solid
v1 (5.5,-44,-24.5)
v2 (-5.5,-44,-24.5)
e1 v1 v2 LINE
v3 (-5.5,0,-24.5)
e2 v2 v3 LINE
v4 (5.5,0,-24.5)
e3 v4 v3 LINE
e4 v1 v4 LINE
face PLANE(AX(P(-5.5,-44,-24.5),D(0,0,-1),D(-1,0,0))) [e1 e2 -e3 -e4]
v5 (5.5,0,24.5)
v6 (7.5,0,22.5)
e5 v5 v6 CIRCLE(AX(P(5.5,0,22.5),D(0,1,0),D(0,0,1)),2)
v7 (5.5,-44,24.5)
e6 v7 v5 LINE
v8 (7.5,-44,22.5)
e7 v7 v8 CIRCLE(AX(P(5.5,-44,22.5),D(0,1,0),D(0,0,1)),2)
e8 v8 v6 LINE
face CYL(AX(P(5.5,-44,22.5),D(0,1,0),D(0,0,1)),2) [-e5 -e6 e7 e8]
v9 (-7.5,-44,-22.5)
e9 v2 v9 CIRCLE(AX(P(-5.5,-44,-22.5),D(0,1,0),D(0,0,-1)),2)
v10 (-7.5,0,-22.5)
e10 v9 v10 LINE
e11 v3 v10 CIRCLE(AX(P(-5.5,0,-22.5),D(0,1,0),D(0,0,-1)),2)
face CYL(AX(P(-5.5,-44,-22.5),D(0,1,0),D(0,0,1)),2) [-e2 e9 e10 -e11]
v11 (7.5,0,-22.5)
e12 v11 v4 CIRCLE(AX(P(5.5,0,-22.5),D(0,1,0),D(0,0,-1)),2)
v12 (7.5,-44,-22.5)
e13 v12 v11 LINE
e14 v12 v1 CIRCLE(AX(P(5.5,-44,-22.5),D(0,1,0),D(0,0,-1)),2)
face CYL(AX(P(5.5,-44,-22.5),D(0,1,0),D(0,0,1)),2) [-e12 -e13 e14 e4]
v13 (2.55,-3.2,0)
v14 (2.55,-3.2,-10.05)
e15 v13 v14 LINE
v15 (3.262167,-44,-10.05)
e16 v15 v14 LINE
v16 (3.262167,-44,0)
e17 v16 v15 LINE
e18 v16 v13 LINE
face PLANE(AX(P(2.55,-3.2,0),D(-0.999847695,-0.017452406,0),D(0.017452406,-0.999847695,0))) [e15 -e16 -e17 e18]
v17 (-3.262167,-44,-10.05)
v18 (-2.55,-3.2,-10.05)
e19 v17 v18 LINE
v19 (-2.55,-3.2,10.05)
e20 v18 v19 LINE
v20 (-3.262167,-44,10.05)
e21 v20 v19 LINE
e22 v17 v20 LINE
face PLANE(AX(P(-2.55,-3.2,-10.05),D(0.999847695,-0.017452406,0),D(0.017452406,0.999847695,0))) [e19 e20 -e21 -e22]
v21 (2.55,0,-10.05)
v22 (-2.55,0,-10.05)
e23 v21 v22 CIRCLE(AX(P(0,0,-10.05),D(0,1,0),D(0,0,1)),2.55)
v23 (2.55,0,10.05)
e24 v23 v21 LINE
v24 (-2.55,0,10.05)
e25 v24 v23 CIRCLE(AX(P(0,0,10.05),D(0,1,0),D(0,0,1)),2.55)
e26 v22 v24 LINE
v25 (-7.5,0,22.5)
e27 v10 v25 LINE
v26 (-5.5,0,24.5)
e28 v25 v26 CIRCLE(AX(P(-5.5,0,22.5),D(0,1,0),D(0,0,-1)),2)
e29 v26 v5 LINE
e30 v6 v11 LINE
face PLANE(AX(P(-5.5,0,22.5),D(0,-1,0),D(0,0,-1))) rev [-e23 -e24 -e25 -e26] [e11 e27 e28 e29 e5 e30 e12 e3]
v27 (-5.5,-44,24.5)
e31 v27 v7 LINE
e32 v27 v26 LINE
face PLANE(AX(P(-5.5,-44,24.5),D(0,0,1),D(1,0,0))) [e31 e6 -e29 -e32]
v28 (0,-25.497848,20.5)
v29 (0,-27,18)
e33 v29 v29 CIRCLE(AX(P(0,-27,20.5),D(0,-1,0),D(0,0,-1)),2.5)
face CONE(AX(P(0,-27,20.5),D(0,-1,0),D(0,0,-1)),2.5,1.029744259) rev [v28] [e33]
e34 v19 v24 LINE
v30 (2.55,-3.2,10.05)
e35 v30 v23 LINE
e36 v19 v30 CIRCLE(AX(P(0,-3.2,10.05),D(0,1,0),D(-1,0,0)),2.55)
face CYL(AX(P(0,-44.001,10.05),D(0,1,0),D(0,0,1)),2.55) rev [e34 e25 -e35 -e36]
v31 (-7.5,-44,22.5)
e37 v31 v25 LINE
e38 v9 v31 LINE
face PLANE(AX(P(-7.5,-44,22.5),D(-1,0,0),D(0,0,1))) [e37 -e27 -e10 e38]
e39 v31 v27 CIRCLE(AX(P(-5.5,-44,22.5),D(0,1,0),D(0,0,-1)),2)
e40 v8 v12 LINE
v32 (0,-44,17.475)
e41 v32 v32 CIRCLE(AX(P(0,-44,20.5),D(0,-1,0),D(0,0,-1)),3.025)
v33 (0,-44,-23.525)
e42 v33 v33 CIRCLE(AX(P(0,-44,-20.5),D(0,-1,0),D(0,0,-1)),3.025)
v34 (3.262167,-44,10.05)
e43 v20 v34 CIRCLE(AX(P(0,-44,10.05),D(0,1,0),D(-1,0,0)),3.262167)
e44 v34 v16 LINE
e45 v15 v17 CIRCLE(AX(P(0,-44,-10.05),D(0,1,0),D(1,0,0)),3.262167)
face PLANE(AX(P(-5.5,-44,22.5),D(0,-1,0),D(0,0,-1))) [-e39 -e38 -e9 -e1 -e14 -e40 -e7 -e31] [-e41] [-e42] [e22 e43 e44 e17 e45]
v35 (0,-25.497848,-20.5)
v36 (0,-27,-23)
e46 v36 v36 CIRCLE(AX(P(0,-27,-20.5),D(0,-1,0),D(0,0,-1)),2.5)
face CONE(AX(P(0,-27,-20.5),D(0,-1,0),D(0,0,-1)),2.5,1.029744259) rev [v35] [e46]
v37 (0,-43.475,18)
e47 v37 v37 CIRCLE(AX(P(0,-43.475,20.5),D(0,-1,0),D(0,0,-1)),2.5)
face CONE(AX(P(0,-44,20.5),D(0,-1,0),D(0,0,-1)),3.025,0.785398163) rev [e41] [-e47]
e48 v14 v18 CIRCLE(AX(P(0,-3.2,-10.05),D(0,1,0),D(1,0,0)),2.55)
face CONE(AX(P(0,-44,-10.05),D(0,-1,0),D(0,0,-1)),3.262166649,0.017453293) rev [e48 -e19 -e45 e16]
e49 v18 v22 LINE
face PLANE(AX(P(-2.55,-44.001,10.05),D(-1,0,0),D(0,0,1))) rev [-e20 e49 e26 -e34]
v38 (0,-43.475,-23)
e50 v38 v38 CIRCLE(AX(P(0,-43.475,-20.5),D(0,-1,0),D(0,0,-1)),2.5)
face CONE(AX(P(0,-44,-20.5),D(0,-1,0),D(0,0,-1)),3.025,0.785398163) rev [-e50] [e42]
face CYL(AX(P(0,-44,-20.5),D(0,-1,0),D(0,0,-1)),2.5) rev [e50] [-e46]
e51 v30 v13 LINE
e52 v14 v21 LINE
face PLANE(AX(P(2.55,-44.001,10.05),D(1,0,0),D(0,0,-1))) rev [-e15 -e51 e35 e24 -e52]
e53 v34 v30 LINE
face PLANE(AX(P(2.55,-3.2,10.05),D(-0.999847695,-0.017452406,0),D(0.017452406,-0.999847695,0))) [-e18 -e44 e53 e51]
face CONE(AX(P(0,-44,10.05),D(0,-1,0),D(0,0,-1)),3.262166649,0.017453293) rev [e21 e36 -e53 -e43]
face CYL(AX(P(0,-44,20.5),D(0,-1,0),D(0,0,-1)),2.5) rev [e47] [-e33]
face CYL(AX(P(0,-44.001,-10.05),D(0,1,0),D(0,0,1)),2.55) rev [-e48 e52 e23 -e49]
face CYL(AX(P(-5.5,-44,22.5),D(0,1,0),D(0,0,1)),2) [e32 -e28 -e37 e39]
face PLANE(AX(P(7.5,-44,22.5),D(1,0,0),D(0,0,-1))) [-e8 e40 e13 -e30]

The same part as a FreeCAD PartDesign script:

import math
import FreeCAD as App
import Part
import Sketcher

V = App.Vector
Q = App.Units.Quantity


def add_polygon(sketch, points):
    """Adds a closed chain of lines whose ends are joined by coincident constraints."""
    first, n = sketch.GeometryCount, len(points)
    for a, b in zip(points, points[1:] + points[:1]):
        sketch.addGeometry(Part.LineSegment(App.Vector(*a, 0), App.Vector(*b, 0)), False)
    for i in range(n):
        sketch.addConstraint(Sketcher.Constraint("Coincident", first + i, 2, first + (i + 1) % n, 1))

doc = App.newDocument("Part")
params = doc.addObject("Spreadsheet::Sheet", "Params")
for row, (alias, value) in enumerate([
    ("sketch1_radius", "2 mm"),
    ("sketch1_width", "11 mm"),
    ("sketch1_height", "45 mm"),
    ("pad1_length", "44 mm"),
    ("sketch2_radius", "2.55 mm"),
    ("sketch2_height", "20.1 mm"),
    ("sketch3_height", "40.8 mm"),
    ("sketch4_radius", "2.55 mm"),
    ("sketch4_height", "20.1 mm"),
    ("sketch5_diameter", "5 mm"),
    ("hole_diameter", "5 mm"),
    ("hole_depth", "17 mm"),
    ("hole_csink_diameter", "6.05 mm"),
], start=1):
    params.set(f"A{row}", alias)
    params.set(f"B{row}", "=" + value)
    params.setAlias(f"B{row}", alias)

body = doc.addObject("PartDesign::Body", "Body")

sketch1 = body.newObject("Sketcher::SketchObject", "Sketch")
sketch1.AttachmentSupport = (doc.getObject("XZ_Plane"), [""])
sketch1.MapMode = "FlatFace"
sketch1.addGeometry(Part.LineSegment(V(-5.5, 24.5, 0), V(5.5, 24.5, 0)), False)
sketch1.addGeometry(Part.ArcOfCircle(Part.Circle(V(5.5, 22.5, 0), V(0, 0, 1), 2), math.radians(0), math.radians(90)), False)
sketch1.addGeometry(Part.LineSegment(V(7.5, 22.5, 0), V(7.5, -22.5, 0)), False)
sketch1.addGeometry(Part.ArcOfCircle(Part.Circle(V(5.5, -22.5, 0), V(0, 0, 1), 2), math.radians(-90), math.radians(0)), False)
sketch1.addGeometry(Part.LineSegment(V(5.5, -24.5, 0), V(-5.5, -24.5, 0)), False)
sketch1.addGeometry(Part.ArcOfCircle(Part.Circle(V(-5.5, -22.5, 0), V(0, 0, 1), 2), math.radians(-180), math.radians(-90)), False)
sketch1.addGeometry(Part.LineSegment(V(-7.5, -22.5, 0), V(-7.5, 22.5, 0)), False)
sketch1.addGeometry(Part.ArcOfCircle(Part.Circle(V(-5.5, 22.5, 0), V(0, 0, 1), 2), math.radians(90), math.radians(180)), False)
sketch1.addConstraint(Sketcher.Constraint("Tangent", 0, 2, 1, 2))
sketch1.addConstraint(Sketcher.Constraint("Tangent", 1, 1, 2, 1))
sketch1.addConstraint(Sketcher.Constraint("Tangent", 2, 2, 3, 2))
sketch1.addConstraint(Sketcher.Constraint("Tangent", 3, 1, 4, 1))
sketch1.addConstraint(Sketcher.Constraint("Tangent", 4, 2, 5, 2))
sketch1.addConstraint(Sketcher.Constraint("Tangent", 5, 1, 6, 1))
sketch1.addConstraint(Sketcher.Constraint("Tangent", 6, 2, 7, 2))
sketch1.addConstraint(Sketcher.Constraint("Tangent", 7, 1, 0, 1))
sketch1.addConstraint(Sketcher.Constraint("Horizontal", 0))
sketch1.addConstraint(Sketcher.Constraint("Vertical", 2))
sketch1.addConstraint(Sketcher.Constraint("Horizontal", 4))
sketch1.addConstraint(Sketcher.Constraint("Vertical", 6))
sketch1.addConstraint(Sketcher.Constraint("Equal", 1, 3))
sketch1.addConstraint(Sketcher.Constraint("Equal", 3, 5))
sketch1.addConstraint(Sketcher.Constraint("Equal", 5, 7))
sketch1.addConstraint(Sketcher.Constraint("Symmetric", 1, 3, 5, 3, -1, 1))
sketch1.addConstraint(Sketcher.Constraint("Radius", 1, Q("2 mm")))
sketch1.addConstraint(Sketcher.Constraint("DistanceX", 0, 1, 0, 2, Q("11 mm")))
sketch1.addConstraint(Sketcher.Constraint("DistanceY", 2, 2, 2, 1, Q("45 mm")))
sketch1.setExpression("Constraints[16]", "Params.sketch1_radius")
sketch1.setExpression("Constraints[17]", "Params.sketch1_width")
sketch1.setExpression("Constraints[18]", "Params.sketch1_height")
pad1 = body.newObject("PartDesign::Pad", "Pad")
pad1.Profile = sketch1
pad1.setExpression("Length", "Params.pad1_length")

sketch2 = body.newObject("Sketcher::SketchObject", "Sketch001")
sketch2.AttachmentSupport = (doc.getObject("XZ_Plane"), [""])
sketch2.MapMode = "FlatFace"
sketch2.addGeometry(Part.LineSegment(V(-2.5, -10.1, 0), V(-2.5, 10.1, 0)), False)
sketch2.addGeometry(Part.ArcOfCircle(Part.Circle(V(0, 10.1, 0), V(0, 0, 1), 2.5), math.radians(0), math.radians(180)), False)
sketch2.addGeometry(Part.LineSegment(V(2.5, 10.1, 0), V(2.5, -10.1, 0)), False)
sketch2.addGeometry(Part.ArcOfCircle(Part.Circle(V(0, -10.1, 0), V(0, 0, 1), 2.5), math.radians(180), math.radians(360)), False)
sketch2.addConstraint(Sketcher.Constraint("Tangent", 0, 2, 1, 2))
sketch2.addConstraint(Sketcher.Constraint("Tangent", 1, 1, 2, 1))
sketch2.addConstraint(Sketcher.Constraint("Tangent", 2, 2, 3, 2))
sketch2.addConstraint(Sketcher.Constraint("Tangent", 3, 1, 0, 1))
sketch2.addConstraint(Sketcher.Constraint("Vertical", 0))
sketch2.addConstraint(Sketcher.Constraint("Vertical", 2))
sketch2.addConstraint(Sketcher.Constraint("Symmetric", 1, 3, 3, 3, -1, 1))
sketch2.addConstraint(Sketcher.Constraint("Radius", 1, Q("2.55 mm")))
sketch2.addConstraint(Sketcher.Constraint("DistanceY", 0, 1, 0, 2, Q("20.1 mm")))
sketch2.setExpression("Constraints[7]", "Params.sketch2_radius")
sketch2.setExpression("Constraints[8]", "Params.sketch2_height")
pocket1 = body.newObject("PartDesign::Pocket", "Pocket")
pocket1.Profile = sketch2
pocket1.Type = "UpToFirst"
pocket1.Reversed = True

sketch3 = body.newObject("Sketcher::SketchObject", "Sketch002")
sketch3.AttachmentSupport = (doc.getObject("XY_Plane"), [""])
sketch3.MapMode = "FlatFace"
add_polygon(sketch3, [(3.3, -44), (2.5, -3.2), (2.5, -44)])
sketch3.addConstraint(Sketcher.Constraint("Vertical", 1))
sketch3.addConstraint(Sketcher.Constraint("Horizontal", 2))
sketch3.addConstraint(Sketcher.Constraint("Angle", 0, Q("91 deg")))
sketch3.addConstraint(Sketcher.Constraint("DistanceY", 1, 2, 1, 1, Q("40.8 mm")))
sketch3.addConstraint(Sketcher.Constraint("DistanceY", 1, 2, -1, 1, Q("44 mm")))
sketch3.addConstraint(Sketcher.Constraint("DistanceX", -1, 1, 0, 2, Q("2.55 mm")))
sketch3.setExpression("Constraints[6]", "Params.sketch3_height")

sketch4 = body.newObject("Sketcher::SketchObject", "Sketch003")
sketch4.AttachmentSupport = (doc.getObject("XZ_Plane"), [""])
sketch4.MapMode = "FlatFace"
sketch4.addGeometry(Part.LineSegment(V(-2.5, -10.1, 0), V(-2.5, 10.1, 0)), False)
sketch4.addGeometry(Part.ArcOfCircle(Part.Circle(V(0, 10.1, 0), V(0, 0, 1), 2.5), math.radians(0), math.radians(180)), False)
sketch4.addGeometry(Part.LineSegment(V(2.5, 10.1, 0), V(2.5, -10.1, 0)), False)
sketch4.addGeometry(Part.ArcOfCircle(Part.Circle(V(0, -10.1, 0), V(0, 0, 1), 2.5), math.radians(180), math.radians(360)), False)
sketch4.addConstraint(Sketcher.Constraint("Tangent", 0, 2, 1, 2))
sketch4.addConstraint(Sketcher.Constraint("Tangent", 1, 1, 2, 1))
sketch4.addConstraint(Sketcher.Constraint("Tangent", 2, 2, 3, 2))
sketch4.addConstraint(Sketcher.Constraint("Tangent", 3, 1, 0, 1))
sketch4.addConstraint(Sketcher.Constraint("Vertical", 0))
sketch4.addConstraint(Sketcher.Constraint("Vertical", 2))
sketch4.addConstraint(Sketcher.Constraint("Symmetric", 1, 3, 3, 3, -1, 1))
sketch4.addConstraint(Sketcher.Constraint("Radius", 1, Q("2.55 mm")))
sketch4.addConstraint(Sketcher.Constraint("DistanceY", 0, 1, 0, 2, Q("20.1 mm")))
sketch4.setExpression("Constraints[7]", "Params.sketch4_radius")
sketch4.setExpression("Constraints[8]", "Params.sketch4_height")
doc.recompute()

subtractivepipe = body.newObject("PartDesign::SubtractivePipe", "SubtractivePipe")
subtractivepipe.Profile = sketch3
subtractivepipe.Spine = (sketch4, ["Edge1", "Edge2", "Edge3", "Edge4"])

sketch5 = body.newObject("Sketcher::SketchObject", "Sketch004")
sketch5.AttachmentSupport = (doc.getObject("XZ_Plane"), [""])
sketch5.MapMode = "FlatFace"
sketch5.AttachmentOffset = App.Placement(V(0, 0, 44), App.Rotation())
sketch5.addGeometry(Part.Circle(V(0, -20.5, 0), V(0, 0, 1), 2.5), False)
sketch5.addGeometry(Part.Circle(V(0, 20.5, 0), V(0, 0, 1), 2.5), False)
sketch5.addConstraint(Sketcher.Constraint("Equal", 0, 1))
sketch5.addConstraint(Sketcher.Constraint("Symmetric", 0, 3, 1, 3, -1, 1))
sketch5.addConstraint(Sketcher.Constraint("PointOnObject", 0, 3, -2))
sketch5.addConstraint(Sketcher.Constraint("Diameter", 0, Q("5 mm")))
sketch5.addConstraint(Sketcher.Constraint("DistanceY", 0, 3, 1, 3, Q("41 mm")))
sketch5.setExpression("Constraints[3]", "Params.sketch5_diameter")
doc.recompute()
hole = body.newObject("PartDesign::Hole", "Hole")
hole.Profile = sketch5
hole.ThreadType = "None"
hole.setExpression("Diameter", "Params.hole_diameter")
hole.DepthType = "Dimension"
hole.setExpression("Depth", "Params.hole_depth")
hole.DrillPoint = "Angled"
hole.DrillPointAngle = 118
hole.HoleCutType = "Countersink"
hole.setExpression("HoleCutDiameter", "Params.hole_csink_diameter")
hole.HoleCutCountersinkAngle = 90

doc.recompute()
